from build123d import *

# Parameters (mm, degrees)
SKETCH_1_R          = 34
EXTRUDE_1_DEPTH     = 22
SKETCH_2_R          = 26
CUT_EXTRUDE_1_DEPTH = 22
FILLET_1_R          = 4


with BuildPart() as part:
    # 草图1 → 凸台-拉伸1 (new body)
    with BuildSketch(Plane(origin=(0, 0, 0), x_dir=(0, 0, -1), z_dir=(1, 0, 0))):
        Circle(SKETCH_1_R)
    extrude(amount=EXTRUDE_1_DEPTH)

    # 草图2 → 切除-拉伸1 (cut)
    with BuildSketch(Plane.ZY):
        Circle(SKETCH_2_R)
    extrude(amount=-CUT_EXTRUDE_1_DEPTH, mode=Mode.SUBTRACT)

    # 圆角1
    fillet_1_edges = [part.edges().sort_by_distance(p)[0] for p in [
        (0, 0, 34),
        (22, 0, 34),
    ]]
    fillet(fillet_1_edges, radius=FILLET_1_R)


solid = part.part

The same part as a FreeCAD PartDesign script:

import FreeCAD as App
import Part
import Sketcher

V = App.Vector
Q = App.Units.Quantity


def edges_at(feature, points):
    """Names of the edges that pass closest to the given points."""
    edges = feature.Shape.Edges
    near = lambda p: min(range(len(edges)), key=lambda i: edges[i].distToShape(Part.Vertex(*p))[0])
    return sorted({f"Edge{near(p) + 1}" for p in points})

doc = App.newDocument("Part")
body = doc.addObject("PartDesign::Body", "Body")

sketch1 = body.newObject("Sketcher::SketchObject", "Sketch")
sketch1.AttachmentSupport = (doc.getObject("YZ_Plane"), [""])
sketch1.MapMode = "FlatFace"
sketch1.addGeometry(Part.Circle(V(0, 0, 0), V(0, 0, 1), 34), False)
sketch1.addConstraint(Sketcher.Constraint("Coincident", 0, 3, -1, 1))
sketch1.addConstraint(Sketcher.Constraint("Diameter", 0, Q("68 mm")))
pad1 = body.newObject("PartDesign::Pad", "Pad")
pad1.Profile = sketch1
pad1.Length = 22

sketch2 = body.newObject("Sketcher::SketchObject", "Sketch001")
sketch2.AttachmentSupport = (doc.getObject("YZ_Plane"), [""])
sketch2.MapMode = "FlatFace"
sketch2.addGeometry(Part.Circle(V(0, 0, 0), V(0, 0, 1), 26), False)
sketch2.addConstraint(Sketcher.Constraint("Coincident", 0, 3, -1, 1))
sketch2.addConstraint(Sketcher.Constraint("Diameter", 0, Q("52 mm")))
pocket1 = body.newObject("PartDesign::Pocket", "Pocket")
pocket1.Profile = sketch2
pocket1.Length = 22
pocket1.Reversed = True
doc.recompute()

fillet = body.newObject("PartDesign::Fillet", "Fillet")
fillet.Base = (pocket1, edges_at(pocket1, [(0, 0, 34), (22, 0, 34)]))
fillet.Radius = 4

doc.recompute()
